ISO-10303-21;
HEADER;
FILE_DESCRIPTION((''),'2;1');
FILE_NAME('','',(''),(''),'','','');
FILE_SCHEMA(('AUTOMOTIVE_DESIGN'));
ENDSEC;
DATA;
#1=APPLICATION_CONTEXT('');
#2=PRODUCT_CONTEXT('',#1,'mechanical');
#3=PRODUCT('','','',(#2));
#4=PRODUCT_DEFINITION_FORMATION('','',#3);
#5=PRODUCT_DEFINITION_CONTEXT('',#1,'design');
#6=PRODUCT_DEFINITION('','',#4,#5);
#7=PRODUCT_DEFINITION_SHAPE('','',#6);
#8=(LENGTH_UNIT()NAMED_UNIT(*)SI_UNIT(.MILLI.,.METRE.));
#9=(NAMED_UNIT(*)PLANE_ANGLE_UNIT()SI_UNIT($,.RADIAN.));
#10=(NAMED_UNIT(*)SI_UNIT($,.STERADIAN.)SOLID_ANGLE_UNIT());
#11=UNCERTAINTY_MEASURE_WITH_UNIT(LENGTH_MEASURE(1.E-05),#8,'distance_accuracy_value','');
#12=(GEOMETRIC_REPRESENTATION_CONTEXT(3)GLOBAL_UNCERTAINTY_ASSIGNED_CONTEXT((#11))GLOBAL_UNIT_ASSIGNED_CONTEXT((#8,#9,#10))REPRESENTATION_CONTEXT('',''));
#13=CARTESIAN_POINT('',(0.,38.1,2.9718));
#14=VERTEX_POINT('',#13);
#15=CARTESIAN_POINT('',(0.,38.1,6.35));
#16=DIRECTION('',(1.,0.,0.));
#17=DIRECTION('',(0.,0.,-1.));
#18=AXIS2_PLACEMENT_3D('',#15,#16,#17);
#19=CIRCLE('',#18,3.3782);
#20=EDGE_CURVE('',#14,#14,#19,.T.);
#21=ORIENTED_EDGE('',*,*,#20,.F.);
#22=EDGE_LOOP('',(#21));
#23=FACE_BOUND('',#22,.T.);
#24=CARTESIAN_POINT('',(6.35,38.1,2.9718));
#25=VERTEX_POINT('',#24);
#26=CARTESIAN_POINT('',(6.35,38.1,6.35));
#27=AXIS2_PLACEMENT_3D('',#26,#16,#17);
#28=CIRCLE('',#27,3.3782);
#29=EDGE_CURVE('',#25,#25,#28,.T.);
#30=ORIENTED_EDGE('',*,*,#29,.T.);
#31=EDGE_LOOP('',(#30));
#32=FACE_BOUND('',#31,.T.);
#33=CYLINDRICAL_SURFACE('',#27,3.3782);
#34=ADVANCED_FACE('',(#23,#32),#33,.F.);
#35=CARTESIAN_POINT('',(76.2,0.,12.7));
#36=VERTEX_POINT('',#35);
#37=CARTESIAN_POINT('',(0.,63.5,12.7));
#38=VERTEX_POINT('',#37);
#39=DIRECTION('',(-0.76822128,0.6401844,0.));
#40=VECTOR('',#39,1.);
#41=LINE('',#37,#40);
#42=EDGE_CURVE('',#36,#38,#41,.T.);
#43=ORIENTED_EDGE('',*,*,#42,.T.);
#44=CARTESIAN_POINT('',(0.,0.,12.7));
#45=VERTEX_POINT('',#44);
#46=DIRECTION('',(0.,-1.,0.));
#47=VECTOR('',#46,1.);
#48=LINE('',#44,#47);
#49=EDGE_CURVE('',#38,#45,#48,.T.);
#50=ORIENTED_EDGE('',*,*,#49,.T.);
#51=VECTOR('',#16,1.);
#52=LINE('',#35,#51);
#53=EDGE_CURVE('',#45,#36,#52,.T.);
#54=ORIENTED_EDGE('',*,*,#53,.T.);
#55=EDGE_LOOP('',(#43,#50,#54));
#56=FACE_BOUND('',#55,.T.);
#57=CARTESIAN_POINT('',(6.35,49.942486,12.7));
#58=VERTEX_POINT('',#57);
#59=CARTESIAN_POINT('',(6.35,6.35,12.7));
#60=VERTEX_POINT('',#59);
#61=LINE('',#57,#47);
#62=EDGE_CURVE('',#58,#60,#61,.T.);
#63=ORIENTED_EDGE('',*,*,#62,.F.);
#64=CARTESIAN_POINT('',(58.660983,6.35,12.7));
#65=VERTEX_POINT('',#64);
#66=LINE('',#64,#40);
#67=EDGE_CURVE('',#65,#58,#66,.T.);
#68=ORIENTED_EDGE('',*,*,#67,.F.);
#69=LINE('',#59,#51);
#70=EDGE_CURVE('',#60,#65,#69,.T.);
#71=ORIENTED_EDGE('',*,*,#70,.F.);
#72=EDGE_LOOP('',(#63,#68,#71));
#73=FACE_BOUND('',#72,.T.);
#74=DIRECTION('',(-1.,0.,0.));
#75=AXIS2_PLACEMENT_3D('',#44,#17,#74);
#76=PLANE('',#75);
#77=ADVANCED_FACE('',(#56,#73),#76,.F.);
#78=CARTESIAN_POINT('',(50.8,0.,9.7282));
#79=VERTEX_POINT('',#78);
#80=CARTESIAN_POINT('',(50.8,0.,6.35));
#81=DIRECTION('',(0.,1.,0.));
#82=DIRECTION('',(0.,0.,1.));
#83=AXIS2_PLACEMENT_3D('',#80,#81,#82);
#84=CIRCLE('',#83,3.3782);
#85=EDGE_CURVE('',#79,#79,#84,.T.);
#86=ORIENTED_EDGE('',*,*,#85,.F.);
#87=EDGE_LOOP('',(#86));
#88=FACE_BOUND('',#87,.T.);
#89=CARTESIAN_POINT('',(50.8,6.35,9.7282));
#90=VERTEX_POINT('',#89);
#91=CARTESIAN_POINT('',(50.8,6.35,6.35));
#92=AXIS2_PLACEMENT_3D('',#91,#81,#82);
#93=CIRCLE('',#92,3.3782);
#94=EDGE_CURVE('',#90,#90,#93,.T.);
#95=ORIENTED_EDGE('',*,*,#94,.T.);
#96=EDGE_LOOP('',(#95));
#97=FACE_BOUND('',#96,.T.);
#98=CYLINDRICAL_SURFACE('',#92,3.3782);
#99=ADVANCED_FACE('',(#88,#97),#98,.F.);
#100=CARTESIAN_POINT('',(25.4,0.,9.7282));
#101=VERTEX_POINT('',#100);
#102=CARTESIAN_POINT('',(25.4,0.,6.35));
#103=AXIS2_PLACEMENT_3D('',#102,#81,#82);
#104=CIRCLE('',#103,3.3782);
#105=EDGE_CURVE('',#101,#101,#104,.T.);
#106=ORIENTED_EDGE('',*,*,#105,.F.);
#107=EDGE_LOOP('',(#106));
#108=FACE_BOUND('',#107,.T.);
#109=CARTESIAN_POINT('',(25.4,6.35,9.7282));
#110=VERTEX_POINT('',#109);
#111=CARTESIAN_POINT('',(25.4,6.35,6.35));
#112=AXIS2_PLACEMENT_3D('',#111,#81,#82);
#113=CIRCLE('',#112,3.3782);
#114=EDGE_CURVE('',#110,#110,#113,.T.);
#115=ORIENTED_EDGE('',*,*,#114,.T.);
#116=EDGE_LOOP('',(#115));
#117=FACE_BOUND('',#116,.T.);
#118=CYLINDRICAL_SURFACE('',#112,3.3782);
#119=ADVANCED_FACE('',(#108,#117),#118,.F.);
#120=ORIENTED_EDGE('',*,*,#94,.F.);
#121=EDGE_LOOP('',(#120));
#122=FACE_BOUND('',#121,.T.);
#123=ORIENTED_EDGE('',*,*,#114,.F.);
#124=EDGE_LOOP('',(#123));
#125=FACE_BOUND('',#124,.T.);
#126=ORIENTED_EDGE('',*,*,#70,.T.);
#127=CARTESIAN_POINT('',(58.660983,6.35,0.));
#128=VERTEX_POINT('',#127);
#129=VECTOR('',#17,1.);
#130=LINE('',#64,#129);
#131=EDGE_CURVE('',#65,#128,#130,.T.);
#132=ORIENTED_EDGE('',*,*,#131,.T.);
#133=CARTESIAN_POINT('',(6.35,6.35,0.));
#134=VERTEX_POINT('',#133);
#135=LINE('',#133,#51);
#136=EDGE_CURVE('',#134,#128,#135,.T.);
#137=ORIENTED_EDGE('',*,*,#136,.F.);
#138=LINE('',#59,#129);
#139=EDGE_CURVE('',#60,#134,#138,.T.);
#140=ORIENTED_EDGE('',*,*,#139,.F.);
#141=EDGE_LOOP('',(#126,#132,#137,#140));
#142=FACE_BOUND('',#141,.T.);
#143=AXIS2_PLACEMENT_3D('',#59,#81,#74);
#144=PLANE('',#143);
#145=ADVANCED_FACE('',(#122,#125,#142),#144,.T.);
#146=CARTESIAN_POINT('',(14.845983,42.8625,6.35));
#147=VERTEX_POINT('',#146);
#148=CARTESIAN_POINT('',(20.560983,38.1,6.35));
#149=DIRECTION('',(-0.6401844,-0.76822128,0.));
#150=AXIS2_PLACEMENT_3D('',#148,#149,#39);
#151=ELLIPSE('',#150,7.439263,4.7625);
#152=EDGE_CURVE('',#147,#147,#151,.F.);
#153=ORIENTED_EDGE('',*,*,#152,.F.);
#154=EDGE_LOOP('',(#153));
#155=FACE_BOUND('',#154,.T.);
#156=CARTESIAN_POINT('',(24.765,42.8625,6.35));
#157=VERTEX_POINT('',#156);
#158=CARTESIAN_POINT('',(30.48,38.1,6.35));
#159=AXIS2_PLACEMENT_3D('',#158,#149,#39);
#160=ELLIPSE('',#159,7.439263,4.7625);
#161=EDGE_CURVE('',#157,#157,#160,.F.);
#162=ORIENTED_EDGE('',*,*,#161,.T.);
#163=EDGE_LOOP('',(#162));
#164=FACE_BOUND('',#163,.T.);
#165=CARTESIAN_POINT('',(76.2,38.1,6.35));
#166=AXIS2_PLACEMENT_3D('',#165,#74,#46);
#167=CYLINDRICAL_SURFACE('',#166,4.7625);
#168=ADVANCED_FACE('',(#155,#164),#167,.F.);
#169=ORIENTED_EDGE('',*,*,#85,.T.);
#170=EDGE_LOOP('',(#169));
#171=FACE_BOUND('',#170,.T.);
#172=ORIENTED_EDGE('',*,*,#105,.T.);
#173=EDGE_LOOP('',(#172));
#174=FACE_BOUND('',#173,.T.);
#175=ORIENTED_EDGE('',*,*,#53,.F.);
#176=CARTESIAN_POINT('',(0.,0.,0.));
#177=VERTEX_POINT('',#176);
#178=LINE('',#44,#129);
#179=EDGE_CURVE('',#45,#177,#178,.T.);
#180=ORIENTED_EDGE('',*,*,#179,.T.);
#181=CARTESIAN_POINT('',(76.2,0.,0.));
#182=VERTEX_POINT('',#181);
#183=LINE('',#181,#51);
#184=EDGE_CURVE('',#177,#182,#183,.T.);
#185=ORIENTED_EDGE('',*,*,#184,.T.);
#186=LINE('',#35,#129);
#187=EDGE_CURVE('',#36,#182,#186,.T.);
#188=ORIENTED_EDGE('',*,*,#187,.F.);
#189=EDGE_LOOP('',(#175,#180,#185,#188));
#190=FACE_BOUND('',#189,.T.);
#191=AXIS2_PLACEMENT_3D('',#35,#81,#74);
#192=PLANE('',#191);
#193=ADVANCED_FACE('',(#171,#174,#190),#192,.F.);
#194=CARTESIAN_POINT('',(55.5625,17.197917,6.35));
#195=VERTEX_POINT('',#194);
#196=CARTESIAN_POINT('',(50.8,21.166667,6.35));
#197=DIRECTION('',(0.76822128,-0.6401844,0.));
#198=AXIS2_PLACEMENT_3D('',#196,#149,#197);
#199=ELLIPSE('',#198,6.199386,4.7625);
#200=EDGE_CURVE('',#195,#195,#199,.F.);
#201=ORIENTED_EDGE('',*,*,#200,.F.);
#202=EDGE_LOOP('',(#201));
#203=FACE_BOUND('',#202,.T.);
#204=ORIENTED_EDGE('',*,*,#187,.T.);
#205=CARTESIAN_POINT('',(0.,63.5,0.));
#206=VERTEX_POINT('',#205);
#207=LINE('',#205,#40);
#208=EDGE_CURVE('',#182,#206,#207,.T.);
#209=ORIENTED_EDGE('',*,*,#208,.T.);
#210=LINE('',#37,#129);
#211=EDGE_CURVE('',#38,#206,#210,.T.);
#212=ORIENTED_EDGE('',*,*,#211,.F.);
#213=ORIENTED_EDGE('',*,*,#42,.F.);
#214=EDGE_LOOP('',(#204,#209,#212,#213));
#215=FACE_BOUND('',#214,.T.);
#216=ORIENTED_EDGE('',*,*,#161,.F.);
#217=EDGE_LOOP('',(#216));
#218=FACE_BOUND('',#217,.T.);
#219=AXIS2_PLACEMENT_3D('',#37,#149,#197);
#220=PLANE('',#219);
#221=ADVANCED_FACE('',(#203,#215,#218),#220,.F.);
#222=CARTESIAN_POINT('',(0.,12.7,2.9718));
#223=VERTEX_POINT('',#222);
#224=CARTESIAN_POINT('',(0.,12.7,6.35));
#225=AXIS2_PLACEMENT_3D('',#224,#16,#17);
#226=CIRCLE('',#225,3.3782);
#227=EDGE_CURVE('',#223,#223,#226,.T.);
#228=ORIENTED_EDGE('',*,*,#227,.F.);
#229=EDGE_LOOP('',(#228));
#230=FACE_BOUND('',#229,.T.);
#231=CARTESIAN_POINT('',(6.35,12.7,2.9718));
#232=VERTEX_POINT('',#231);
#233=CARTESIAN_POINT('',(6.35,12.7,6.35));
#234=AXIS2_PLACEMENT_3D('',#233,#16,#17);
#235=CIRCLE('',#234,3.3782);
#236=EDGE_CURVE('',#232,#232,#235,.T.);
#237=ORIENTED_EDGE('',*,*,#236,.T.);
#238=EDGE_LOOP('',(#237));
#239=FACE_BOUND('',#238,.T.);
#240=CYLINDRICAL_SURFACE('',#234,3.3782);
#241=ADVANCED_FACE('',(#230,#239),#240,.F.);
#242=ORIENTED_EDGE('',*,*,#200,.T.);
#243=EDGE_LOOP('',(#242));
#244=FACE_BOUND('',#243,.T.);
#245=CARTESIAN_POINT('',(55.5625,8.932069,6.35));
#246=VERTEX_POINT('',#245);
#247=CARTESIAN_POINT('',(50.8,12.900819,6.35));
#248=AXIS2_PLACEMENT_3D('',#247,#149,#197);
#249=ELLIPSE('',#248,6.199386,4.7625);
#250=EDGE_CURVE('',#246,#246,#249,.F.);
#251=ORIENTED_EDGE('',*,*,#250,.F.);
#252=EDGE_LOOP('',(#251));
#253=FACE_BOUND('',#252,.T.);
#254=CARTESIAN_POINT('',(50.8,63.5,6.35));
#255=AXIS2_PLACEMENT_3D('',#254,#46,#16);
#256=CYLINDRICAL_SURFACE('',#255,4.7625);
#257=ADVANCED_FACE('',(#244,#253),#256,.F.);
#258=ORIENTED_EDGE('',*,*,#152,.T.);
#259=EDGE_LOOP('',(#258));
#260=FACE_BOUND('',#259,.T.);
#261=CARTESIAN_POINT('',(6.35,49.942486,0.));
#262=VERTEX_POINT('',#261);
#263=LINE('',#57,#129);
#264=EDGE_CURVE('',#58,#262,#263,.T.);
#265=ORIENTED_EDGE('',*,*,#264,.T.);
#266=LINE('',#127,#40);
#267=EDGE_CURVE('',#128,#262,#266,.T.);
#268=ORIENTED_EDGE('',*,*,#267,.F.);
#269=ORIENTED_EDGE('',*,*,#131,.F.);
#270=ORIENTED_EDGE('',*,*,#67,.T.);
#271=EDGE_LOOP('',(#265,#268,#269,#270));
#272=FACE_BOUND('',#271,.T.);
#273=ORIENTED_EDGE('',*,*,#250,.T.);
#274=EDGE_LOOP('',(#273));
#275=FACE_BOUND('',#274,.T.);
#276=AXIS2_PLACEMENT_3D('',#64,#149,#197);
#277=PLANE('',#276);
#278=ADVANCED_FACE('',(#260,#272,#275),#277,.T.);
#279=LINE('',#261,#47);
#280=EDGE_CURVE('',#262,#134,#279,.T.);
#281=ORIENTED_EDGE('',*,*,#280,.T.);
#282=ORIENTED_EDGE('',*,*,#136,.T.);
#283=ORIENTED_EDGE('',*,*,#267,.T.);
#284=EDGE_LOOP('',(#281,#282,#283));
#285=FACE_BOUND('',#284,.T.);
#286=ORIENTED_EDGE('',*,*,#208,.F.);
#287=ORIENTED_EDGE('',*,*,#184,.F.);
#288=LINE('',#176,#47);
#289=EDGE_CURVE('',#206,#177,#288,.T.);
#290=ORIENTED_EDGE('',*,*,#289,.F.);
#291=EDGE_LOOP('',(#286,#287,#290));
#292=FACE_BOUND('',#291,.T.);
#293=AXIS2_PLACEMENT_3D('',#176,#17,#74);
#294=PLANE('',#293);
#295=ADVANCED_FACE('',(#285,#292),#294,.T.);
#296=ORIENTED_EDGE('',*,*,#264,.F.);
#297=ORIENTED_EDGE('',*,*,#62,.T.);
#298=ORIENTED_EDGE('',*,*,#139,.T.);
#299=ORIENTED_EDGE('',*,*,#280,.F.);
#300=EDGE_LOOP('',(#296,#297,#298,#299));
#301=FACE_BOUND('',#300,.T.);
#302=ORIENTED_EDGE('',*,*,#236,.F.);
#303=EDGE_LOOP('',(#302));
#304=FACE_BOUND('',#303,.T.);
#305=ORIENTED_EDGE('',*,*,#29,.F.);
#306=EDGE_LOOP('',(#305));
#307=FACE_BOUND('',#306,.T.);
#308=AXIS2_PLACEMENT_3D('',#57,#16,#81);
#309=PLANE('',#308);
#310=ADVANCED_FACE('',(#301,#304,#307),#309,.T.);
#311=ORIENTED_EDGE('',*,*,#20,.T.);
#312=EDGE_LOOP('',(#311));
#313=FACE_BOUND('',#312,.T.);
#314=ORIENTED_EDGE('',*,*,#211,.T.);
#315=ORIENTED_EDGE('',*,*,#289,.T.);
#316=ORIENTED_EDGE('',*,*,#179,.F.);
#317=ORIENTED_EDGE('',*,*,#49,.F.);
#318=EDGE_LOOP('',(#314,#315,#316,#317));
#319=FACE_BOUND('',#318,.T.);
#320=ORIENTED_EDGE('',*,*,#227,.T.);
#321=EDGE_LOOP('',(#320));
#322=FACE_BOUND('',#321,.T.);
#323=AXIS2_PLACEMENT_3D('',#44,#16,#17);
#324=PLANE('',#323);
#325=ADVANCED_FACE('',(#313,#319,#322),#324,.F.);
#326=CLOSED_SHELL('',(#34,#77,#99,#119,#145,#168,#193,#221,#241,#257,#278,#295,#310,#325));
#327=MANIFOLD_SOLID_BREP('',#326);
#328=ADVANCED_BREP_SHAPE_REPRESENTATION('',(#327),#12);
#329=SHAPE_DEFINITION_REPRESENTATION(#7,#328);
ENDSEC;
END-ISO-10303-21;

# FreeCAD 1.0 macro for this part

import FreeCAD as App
import Part
import Sketcher
Q = App.Units.Quantity


def add_polygon(sketch, points):
    """Adds a closed chain of lines whose ends are joined by coincident constraints."""
    first, n = sketch.GeometryCount, len(points)
    for a, b in zip(points, points[1:] + points[:1]):
        sketch.addGeometry(Part.LineSegment(App.Vector(*a, 0), App.Vector(*b, 0)), False)
    for i in range(n):
        sketch.addConstraint(Sketcher.Constraint("Coincident", first + i, 2, first + (i + 1) % n, 1))

doc = App.newDocument("Part")
body = doc.addObject("PartDesign::Body", "Body")

sketch1 = body.newObject("Sketcher::SketchObject", "Sketch")
sketch1.AttachmentSupport = (doc.getObject("XY_Plane"), [""])
sketch1.MapMode = "FlatFace"
add_polygon(sketch1, [(0, 64), (0, 0), (76, 0)])
add_polygon(sketch1, [(6, 50), (59, 6), (6, 6)])
sketch1.addConstraint([
    Sketcher.Constraint("Vertical", 0),
    Sketcher.Constraint("Horizontal", 1),
    Sketcher.Constraint("Horizontal", 4),
    Sketcher.Constraint("Vertical", 5),
    Sketcher.Constraint("Coincident", 0, 2, -1, 1),
    Sketcher.Constraint("Parallel", 2, 3),
    Sketcher.Constraint("DistanceX", 1, 1, 1, 2, Q("3 in")),
    Sketcher.Constraint("DistanceY", 0, 2, 0, 1, Q("2.5 in")),
    Sketcher.Constraint("DistanceY", -1, 1, 3, 2, Q("0.25 in")),
    Sketcher.Constraint("DistanceX", -1, 1, 4, 2, Q("0.25 in")),
    Sketcher.Constraint("Distance", 3, Q("68.09364 mm")),
])
pad1 = body.newObject("PartDesign::Pad", "Pad")
pad1.Profile = sketch1
pad1.Length = Q("0.5 in")

sketch2 = body.newObject("Sketcher::SketchObject", "Sketch001")
sketch2.AttachmentSupport = (doc.getObject("YZ_Plane"), [""])
sketch2.MapMode = "FlatFace"
sketch2.AttachmentOffset = App.Placement(App.Vector(0, 0, 0.25 * 25.4), App.Rotation())
sketch2.addGeometry([
    Part.Circle(App.Vector(12.7, 6.3, 0), App.Vector(0, 0, 1), 3.4),
    Part.Circle(App.Vector(38.1, 6.3, 0), App.Vector(0, 0, 1), 3.4),
], False)
sketch2.addConstraint([
    Sketcher.Constraint("Equal", 0, 1),
    Sketcher.Constraint("Horizontal", 0, 3, 1, 3),
    Sketcher.Constraint("Diameter", 0, Q("0.266 in")),
    Sketcher.Constraint("DistanceX", 0, 3, 1, 3, Q("1 in")),
    Sketcher.Constraint("DistanceX", -1, 1, 0, 3, Q("0.5 in")),
    Sketcher.Constraint("DistanceY", -1, 1, 0, 3, Q("0.25 in")),
])
doc.recompute()
hole = body.newObject("PartDesign::Hole", "Hole")
hole.Profile = sketch2
hole.ThreadType = "None"
hole.Diameter = Q("0.266 in")
hole.DepthType = "Dimension"
hole.Depth = Q("0.25 in")
hole.DrillPoint = "Flat"

sketch3 = body.newObject("Sketcher::SketchObject", "Sketch002")
sketch3.AttachmentSupport = (doc.getObject("YZ_Plane"), [""])
sketch3.MapMode = "FlatFace"
sketch3.AttachmentOffset = App.Placement(App.Vector(0, 0, 1 * 25.4), App.Rotation())
add_polygon(sketch3, [(0, 6.3), (6.3, 6.3), (6.3, 9.7), (0, 9.7)])
sketch3.addGeometry(Part.LineSegment(App.Vector(6.3, 6.3, 0), App.Vector(0, 6.3, 0)), True)
sketch3.addConstraint([
    Sketcher.Constraint("Horizontal", 0),
    Sketcher.Constraint("Vertical", 1),
    Sketcher.Constraint("Horizontal", 2),
    Sketcher.Constraint("Vertical", 3),
    Sketcher.Constraint("Horizontal", 4),
    Sketcher.Constraint("Coincident", 4, 1, 0, 2),
    Sketcher.Constraint("PointOnObject", 2, 2, -2),
    Sketcher.Constraint("PointOnObject", 4, 2, -2),
    Sketcher.Constraint("DistanceX", 0, 1, 0, 2, Q("0.25 in")),
    Sketcher.Constraint("DistanceY", 1, 1, 1, 2, Q("0.133 in")),
    Sketcher.Constraint("DistanceY", -1, 1, 0, 2, Q("0.25 in")),
])
groove = body.newObject("PartDesign::Groove", "Groove")
groove.Profile = sketch3
groove.ReferenceAxis = (sketch3, ["Axis0"])
groove.Angle = 360
doc.recompute()

linearpattern = body.newObject("PartDesign::LinearPattern", "LinearPattern")
linearpattern.Originals = [groove]
linearpattern.Direction = (doc.getObject("X_Axis"), [""])
linearpattern.Mode = "offset"
linearpattern.Offset = Q("1 in")
linearpattern.Occurrences = 2
body.Tip = linearpattern

sketch4 = body.newObject("Sketcher::SketchObject", "Sketch003")
sketch4.AttachmentSupport = (doc.getObject("YZ_Plane"), [""])
sketch4.MapMode = "FlatFace"
sketch4.AttachmentOffset = App.Placement(App.Vector(0, 0, 0.25 * 25.4), App.Rotation())
sketch4.addGeometry(Part.Circle(App.Vector(38.1, 6.3, 0), App.Vector(0, 0, 1), 4.8), False)
sketch4.addConstraint([
    Sketcher.Constraint("Diameter", 0, Q("0.375 in")),
    Sketcher.Constraint("DistanceX", -1, 1, 0, 3, Q("1.5 in")),
    Sketcher.Constraint("DistanceY", -1, 1, 0, 3, Q("0.25 in")),
])
pocket1 = body.newObject("PartDesign::Pocket", "Pocket")
pocket1.Profile = sketch4
pocket1.Type = "ThroughAll"
pocket1.Reversed = True

sketch5 = body.newObject("Sketcher::SketchObject", "Sketch004")
sketch5.AttachmentSupport = (doc.getObject("XZ_Plane"), [""])
sketch5.MapMode = "FlatFace"
sketch5.AttachmentOffset = App.Placement(App.Vector(0, 0, -0.25 * 25.4), App.Rotation())
sketch5.addGeometry(Part.Circle(App.Vector(50.8, 6.3, 0), App.Vector(0, 0, 1), 4.8), False)
sketch5.addConstraint([
    Sketcher.Constraint("Diameter", 0, Q("0.375 in")),
    Sketcher.Constraint("DistanceX", -1, 1, 0, 3, Q("2 in")),
    Sketcher.Constraint("DistanceY", -1, 1, 0, 3, Q("0.25 in")),
])
pocket2 = body.newObject("PartDesign::Pocket", "Pocket001")
pocket2.Profile = sketch5
pocket2.Type = "ThroughAll"

doc.recompute()
